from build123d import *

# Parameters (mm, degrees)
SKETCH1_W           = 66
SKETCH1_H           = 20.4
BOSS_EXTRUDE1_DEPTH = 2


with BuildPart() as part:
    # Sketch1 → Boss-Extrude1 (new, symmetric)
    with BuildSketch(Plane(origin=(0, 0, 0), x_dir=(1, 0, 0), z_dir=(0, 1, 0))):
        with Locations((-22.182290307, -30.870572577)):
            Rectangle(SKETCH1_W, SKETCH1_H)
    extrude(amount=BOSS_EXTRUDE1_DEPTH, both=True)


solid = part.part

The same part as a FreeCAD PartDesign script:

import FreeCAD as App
import Part
import Sketcher

V = App.Vector
Q = App.Units.Quantity


def add_polygon(sketch, points):
    """Adds a closed chain of lines whose ends are joined by coincident constraints."""
    first, n = sketch.GeometryCount, len(points)
    for a, b in zip(points, points[1:] + points[:1]):
        sketch.addGeometry(Part.LineSegment(App.Vector(*a, 0), App.Vector(*b, 0)), False)
    for i in range(n):
        sketch.addConstraint(Sketcher.Constraint("Coincident", first + i, 2, first + (i + 1) % n, 1))

doc = App.newDocument("Part")
body = doc.addObject("PartDesign::Body", "Body")

# Sketch on XZ plane
sketch1 = body.newObject("Sketcher::SketchObject", "Sketch")
sketch1.AttachmentSupport = (doc.getObject("XZ_Plane"), [""])
sketch1.MapMode = "FlatFace"
add_polygon(sketch1, [(-55, 21), (-55, 41), (11, 41), (11, 21)])  # lines 0-3
sketch1.addConstraint(Sketcher.Constraint("Vertical", 0))
sketch1.addConstraint(Sketcher.Constraint("Horizontal", 1))
sketch1.addConstraint(Sketcher.Constraint("Vertical", 2))
sketch1.addConstraint(Sketcher.Constraint("Horizontal", 3))
sketch1.addConstraint(Sketcher.Constraint("DistanceX", 1, 1, 1, 2, Q("66 mm")))
sketch1.addConstraint(Sketcher.Constraint("DistanceY", 0, 1, 0, 2, Q("20.4 mm")))
sketch1.addConstraint(Sketcher.Constraint("DistanceX", 0, 2, -1, 1, Q("55.18229 mm")))
sketch1.addConstraint(Sketcher.Constraint("DistanceY", -1, 1, 0, 2, Q("41.070573 mm")))
pad1 = body.newObject("PartDesign::Pad", "Pad")
pad1.Profile = sketch1
pad1.Length = 4
pad1.Midplane = True

doc.recompute()
